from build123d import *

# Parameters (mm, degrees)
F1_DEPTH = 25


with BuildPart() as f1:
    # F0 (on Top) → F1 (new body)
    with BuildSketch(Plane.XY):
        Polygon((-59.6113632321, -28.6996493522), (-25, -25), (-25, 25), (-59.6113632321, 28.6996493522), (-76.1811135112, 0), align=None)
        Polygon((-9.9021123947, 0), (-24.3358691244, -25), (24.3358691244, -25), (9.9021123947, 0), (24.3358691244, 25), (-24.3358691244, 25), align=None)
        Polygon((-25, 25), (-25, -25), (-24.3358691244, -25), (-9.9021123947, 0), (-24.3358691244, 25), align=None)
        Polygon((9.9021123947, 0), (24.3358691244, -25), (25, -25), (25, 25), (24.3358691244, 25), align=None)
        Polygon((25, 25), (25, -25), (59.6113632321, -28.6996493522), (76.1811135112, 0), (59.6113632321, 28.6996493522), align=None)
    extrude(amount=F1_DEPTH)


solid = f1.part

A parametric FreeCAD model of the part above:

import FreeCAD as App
import Part
import Sketcher
from FreeCAD import Vector
Q = App.Units.Quantity


def add_polygon(sketch, points):
    """Adds a closed chain of lines whose ends are joined by coincident constraints."""
    first, n = sketch.GeometryCount, len(points)
    for a, b in zip(points, points[1:] + points[:1]):
        sketch.addGeometry(Part.LineSegment(App.Vector(*a, 0), App.Vector(*b, 0)), False)
    for i in range(n):
        sketch.addConstraint(Sketcher.Constraint("Coincident", first + i, 2, first + (i + 1) % n, 1))

doc = App.newDocument("Part")
body = doc.addObject("PartDesign::Body", "Body")

# Sketch on XY plane
sketch1 = body.newObject("Sketcher::SketchObject", "Sketch")
sketch1.AttachmentSupport = (doc.getObject("XY_Plane"), [""])
sketch1.MapMode = "FlatFace"
add_polygon(sketch1, [(-60, -29), (-25, -25), (25, -25), (60, -29), (76, 0), (60, 29), (25, 25), (-25, 25), (-60, 29), (-76, 0)])  # lines 0-9
sketch1.addConstraint([
    Sketcher.Constraint("Horizontal", 1),
    Sketcher.Constraint("Horizontal", 6),
    Sketcher.Constraint("Symmetric", 0, 2, 5, 2, -1, 1),
    Sketcher.Constraint("Symmetric", 2, 2, 7, 2, -1, 1),
    Sketcher.Constraint("Symmetric", 3, 2, 8, 2, -1, 1),
    Sketcher.Constraint("Symmetric", 4, 2, 9, 2, -1, 1),
    Sketcher.Constraint("Symmetric", 4, 2, 7, 2, -2),
    Sketcher.Constraint("PointOnObject", 3, 2, -1),
    Sketcher.Constraint("Parallel", 2, 7),
    Sketcher.Constraint("Vertical", 1, 2, 5, 2),
    Sketcher.Constraint("DistanceX", 1, 1, 1, 2, 50.0),
    Sketcher.Constraint("Angle", 3, Q("60 deg")),
    Sketcher.Constraint("DistanceY", 0, 2, -1, 1, 25.0),
    Sketcher.Constraint("Distance", 3, 33.139501),
    Sketcher.Constraint("Distance", 0, 34.808532),
])
pad1 = body.newObject("PartDesign::Pad", "Pad")
pad1.Profile = sketch1
pad1.Length = 25

doc.recompute()
